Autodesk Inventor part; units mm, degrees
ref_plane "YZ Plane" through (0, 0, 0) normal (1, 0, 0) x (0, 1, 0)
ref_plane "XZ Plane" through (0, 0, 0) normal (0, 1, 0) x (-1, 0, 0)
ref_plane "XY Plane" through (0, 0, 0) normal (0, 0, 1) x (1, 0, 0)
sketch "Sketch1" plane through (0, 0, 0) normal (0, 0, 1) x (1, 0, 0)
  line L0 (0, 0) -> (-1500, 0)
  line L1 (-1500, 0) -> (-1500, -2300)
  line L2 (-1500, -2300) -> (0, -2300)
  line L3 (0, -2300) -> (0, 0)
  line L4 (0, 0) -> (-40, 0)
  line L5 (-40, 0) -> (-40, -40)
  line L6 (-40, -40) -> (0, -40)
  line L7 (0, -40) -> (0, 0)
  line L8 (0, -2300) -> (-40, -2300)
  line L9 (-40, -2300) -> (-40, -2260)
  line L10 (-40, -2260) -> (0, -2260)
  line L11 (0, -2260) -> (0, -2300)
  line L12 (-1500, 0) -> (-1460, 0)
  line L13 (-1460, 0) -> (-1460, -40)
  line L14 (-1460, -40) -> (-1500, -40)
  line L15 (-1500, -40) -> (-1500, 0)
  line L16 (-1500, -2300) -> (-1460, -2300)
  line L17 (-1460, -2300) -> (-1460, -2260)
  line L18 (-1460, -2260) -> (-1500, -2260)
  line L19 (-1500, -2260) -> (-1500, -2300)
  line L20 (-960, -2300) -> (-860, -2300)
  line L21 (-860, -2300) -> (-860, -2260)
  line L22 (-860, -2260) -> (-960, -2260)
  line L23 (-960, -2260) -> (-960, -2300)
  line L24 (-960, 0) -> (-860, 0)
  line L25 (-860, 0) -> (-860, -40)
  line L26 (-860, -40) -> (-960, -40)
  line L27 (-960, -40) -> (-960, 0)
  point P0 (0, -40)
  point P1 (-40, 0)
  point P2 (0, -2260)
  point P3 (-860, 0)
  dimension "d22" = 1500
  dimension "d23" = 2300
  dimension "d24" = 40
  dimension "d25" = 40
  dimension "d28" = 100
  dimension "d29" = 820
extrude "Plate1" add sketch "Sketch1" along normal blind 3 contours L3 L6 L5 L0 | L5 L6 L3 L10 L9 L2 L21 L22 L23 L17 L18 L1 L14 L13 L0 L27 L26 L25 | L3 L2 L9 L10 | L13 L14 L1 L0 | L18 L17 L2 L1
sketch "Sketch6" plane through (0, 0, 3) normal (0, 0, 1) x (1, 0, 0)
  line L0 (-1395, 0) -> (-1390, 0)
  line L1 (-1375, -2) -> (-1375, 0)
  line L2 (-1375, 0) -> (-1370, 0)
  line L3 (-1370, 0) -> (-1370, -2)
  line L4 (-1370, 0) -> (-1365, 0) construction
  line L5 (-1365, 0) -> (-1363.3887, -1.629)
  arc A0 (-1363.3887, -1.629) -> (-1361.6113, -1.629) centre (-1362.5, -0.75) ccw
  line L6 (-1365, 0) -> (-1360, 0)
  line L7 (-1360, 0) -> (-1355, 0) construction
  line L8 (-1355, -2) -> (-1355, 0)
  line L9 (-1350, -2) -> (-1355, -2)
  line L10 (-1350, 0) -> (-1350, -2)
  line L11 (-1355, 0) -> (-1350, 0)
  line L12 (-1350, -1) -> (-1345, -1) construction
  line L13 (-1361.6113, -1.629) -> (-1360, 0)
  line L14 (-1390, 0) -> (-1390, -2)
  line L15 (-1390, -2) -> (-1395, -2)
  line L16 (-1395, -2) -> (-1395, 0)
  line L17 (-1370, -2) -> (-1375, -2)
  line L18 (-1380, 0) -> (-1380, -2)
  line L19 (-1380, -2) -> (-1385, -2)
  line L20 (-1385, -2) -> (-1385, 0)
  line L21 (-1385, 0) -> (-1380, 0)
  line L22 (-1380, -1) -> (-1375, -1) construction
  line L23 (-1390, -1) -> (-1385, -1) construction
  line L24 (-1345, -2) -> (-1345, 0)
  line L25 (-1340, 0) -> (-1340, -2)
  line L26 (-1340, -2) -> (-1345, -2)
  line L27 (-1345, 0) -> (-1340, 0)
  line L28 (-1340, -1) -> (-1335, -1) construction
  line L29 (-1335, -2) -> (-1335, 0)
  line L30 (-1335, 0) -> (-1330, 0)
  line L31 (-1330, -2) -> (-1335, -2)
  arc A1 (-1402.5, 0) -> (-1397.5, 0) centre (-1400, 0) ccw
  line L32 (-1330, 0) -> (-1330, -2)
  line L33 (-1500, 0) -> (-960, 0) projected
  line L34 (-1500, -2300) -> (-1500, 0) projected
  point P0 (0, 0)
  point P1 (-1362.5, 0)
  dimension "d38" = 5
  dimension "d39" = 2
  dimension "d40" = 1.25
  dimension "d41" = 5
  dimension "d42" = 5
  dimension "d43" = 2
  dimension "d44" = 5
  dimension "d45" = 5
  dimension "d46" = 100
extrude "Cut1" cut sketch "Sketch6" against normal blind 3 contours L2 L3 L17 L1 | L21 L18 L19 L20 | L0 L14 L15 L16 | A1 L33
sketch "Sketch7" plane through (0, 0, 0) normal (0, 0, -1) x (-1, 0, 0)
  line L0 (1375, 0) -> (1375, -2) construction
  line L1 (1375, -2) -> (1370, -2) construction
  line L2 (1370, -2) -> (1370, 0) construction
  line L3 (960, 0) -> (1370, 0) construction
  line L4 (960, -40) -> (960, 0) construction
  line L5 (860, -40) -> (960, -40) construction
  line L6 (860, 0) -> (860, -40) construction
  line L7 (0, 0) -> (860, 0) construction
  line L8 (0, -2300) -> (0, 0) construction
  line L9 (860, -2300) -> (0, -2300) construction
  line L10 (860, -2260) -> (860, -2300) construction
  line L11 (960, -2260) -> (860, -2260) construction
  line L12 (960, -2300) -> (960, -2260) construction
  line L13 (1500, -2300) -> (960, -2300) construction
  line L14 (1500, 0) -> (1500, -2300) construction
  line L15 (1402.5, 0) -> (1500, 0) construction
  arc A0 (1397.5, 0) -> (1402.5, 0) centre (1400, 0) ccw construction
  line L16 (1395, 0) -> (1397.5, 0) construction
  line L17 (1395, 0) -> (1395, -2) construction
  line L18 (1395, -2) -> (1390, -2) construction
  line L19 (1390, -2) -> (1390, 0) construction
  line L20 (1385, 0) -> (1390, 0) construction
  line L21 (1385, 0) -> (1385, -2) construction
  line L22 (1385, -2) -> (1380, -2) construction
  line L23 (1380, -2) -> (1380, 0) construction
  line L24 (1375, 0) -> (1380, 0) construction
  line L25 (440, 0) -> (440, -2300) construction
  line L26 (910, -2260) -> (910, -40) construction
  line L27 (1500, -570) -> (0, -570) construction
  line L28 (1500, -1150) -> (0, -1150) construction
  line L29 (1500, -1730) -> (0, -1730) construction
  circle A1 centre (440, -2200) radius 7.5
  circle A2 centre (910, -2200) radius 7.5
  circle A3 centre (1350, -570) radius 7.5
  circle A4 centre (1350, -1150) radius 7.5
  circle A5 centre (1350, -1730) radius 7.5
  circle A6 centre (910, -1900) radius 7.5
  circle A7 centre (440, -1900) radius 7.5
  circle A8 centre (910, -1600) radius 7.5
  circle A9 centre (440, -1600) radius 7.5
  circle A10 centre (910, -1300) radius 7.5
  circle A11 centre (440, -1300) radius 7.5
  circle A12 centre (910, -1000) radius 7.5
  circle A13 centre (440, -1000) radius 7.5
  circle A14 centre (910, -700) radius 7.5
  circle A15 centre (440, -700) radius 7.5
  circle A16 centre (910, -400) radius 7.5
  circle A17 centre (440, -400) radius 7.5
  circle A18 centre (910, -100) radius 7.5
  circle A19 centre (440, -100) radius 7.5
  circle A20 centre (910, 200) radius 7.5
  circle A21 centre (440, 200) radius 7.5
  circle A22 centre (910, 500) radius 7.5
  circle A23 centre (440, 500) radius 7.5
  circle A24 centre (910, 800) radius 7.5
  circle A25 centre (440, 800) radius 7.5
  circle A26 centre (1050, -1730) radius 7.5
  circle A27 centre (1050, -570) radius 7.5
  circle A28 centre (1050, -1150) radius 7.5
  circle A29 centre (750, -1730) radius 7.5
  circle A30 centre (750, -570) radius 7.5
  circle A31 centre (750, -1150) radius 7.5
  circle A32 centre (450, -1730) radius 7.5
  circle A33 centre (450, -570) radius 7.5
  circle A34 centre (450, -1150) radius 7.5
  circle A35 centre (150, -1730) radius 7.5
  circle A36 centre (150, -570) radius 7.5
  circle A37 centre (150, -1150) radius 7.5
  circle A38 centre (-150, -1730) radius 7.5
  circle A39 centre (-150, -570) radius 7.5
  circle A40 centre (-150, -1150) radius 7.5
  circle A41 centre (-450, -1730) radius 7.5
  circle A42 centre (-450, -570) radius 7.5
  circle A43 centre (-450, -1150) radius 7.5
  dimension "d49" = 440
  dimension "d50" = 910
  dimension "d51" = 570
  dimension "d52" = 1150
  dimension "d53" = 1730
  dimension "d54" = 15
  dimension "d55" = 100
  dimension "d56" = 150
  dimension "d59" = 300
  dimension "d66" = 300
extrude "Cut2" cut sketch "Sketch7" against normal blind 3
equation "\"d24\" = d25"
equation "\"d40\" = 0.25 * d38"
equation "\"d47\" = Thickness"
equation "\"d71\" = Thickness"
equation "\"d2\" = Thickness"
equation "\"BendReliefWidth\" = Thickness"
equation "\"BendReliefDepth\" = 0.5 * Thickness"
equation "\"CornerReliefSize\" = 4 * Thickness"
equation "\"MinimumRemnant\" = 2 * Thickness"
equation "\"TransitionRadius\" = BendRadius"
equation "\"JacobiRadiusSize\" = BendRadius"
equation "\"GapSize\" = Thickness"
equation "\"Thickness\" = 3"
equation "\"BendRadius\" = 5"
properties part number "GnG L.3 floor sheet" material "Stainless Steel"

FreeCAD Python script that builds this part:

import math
import FreeCAD as App
import Part
import Sketcher
from FreeCAD import Vector
Q = App.Units.Quantity


def add_polygon(sketch, points):
    """Adds a closed chain of lines whose ends are joined by coincident constraints."""
    first, n = sketch.GeometryCount, len(points)
    for a, b in zip(points, points[1:] + points[:1]):
        sketch.addGeometry(Part.LineSegment(App.Vector(*a, 0), App.Vector(*b, 0)), False)
    for i in range(n):
        sketch.addConstraint(Sketcher.Constraint("Coincident", first + i, 2, first + (i + 1) % n, 1))

doc = App.newDocument("Part")
body = doc.addObject("PartDesign::Body", "Body")

# Sketch on XY plane
sketch1 = body.newObject("Sketcher::SketchObject", "Sketch")
sketch1.AttachmentSupport = (doc.getObject("XY_Plane"), [""])
sketch1.MapMode = "FlatFace"
add_polygon(sketch1, [(0, 0), (-860, 0), (-860, -40), (-960, -40), (-960, 0), (-1500, 0), (-1500, -2300), (-960, -2300), (-960, -2260), (-860, -2260), (-860, -2300), (0, -2300)])  # lines 0-11
sketch1.addConstraint([
    Sketcher.Constraint("Horizontal", 0),
    Sketcher.Constraint("Vertical", 1),
    Sketcher.Constraint("Horizontal", 2),
    Sketcher.Constraint("Vertical", 3),
    Sketcher.Constraint("Horizontal", 4),
    Sketcher.Constraint("Vertical", 5),
    Sketcher.Constraint("Horizontal", 6),
    Sketcher.Constraint("Vertical", 7),
    Sketcher.Constraint("Horizontal", 8),
    Sketcher.Constraint("Vertical", 9),
    Sketcher.Constraint("Horizontal", 10),
    Sketcher.Constraint("Vertical", 11),
    Sketcher.Constraint("Coincident", 11, 2, -1, 1),
    Sketcher.Constraint("PointOnObject", 3, 2, -1),
    Sketcher.Constraint("Horizontal", 6, 2, 9, 2),
    Sketcher.Constraint("Vertical", 3, 2, 6, 2),
    Sketcher.Constraint("Vertical", 1, 2, 8, 2),
    Sketcher.Constraint("Equal", 3, 7),
    Sketcher.Constraint("DistanceX", 2, 2, 2, 1, Q("100 mm")),
    Sketcher.Constraint("DistanceY", 1, 2, 1, 1, Q("40 mm")),
    Sketcher.Constraint("DistanceY", 5, 2, 5, 1, Q("2300 mm")),
    Sketcher.Constraint("DistanceX", 4, 2, -1, 1, Q("1500 mm")),
    Sketcher.Constraint("DistanceX", 0, 2, 0, 1, Q("860 mm")),
])
pad1 = body.newObject("PartDesign::Pad", "Pad")
pad1.Profile = sketch1
pad1.Length = 3

# Sketch on XY plane
sketch2 = body.newObject("Sketcher::SketchObject", "Sketch001")
sketch2.AttachmentSupport = (doc.getObject("XY_Plane"), [""])
sketch2.MapMode = "FlatFace"
sketch2.AttachmentOffset = App.Placement(Vector(0, 0, 3), App.Rotation())
add_polygon(sketch2, [(-1370, 0), (-1375, 0), (-1375, -2), (-1370, -2)])  # lines 0-3
add_polygon(sketch2, [(-1380, 0), (-1385, 0), (-1385, -2), (-1380, -2)])  # lines 4-7
add_polygon(sketch2, [(-1390, 0), (-1395, 0), (-1395, -2), (-1390, -2)])  # lines 8-11
sketch2.addGeometry(Part.ArcOfCircle(Part.Circle(Vector(-1400, 0, 0), Vector(0, 0, 1), 2.5), math.radians(180), math.radians(360)), False)  # 12
sketch2.addGeometry(Part.LineSegment(Vector(-1397.5, 0, 0), Vector(-1402.5, 0, 0)), False)  # 13
sketch2.addConstraint([
    Sketcher.Constraint("Coincident", 12, 1, 13, 2),
    Sketcher.Constraint("Coincident", 13, 1, 12, 2),
    Sketcher.Constraint("Horizontal", 0),
    Sketcher.Constraint("Vertical", 1),
    Sketcher.Constraint("Horizontal", 2),
    Sketcher.Constraint("Vertical", 3),
    Sketcher.Constraint("Horizontal", 4),
    Sketcher.Constraint("Vertical", 5),
    Sketcher.Constraint("Horizontal", 6),
    Sketcher.Constraint("Vertical", 7),
    Sketcher.Constraint("Horizontal", 8),
    Sketcher.Constraint("Vertical", 9),
    Sketcher.Constraint("Horizontal", 10),
    Sketcher.Constraint("Vertical", 11),
    Sketcher.Constraint("Horizontal", 13),
    Sketcher.Constraint("PointOnObject", 12, 3, -1),
    Sketcher.Constraint("PointOnObject", 0, 2, -1),
    Sketcher.Constraint("PointOnObject", 4, 2, -1),
    Sketcher.Constraint("PointOnObject", 8, 2, -1),
    Sketcher.Constraint("PointOnObject", 12, 1, -1),
    Sketcher.Constraint("Horizontal", 2, 2, 5, 2),
    Sketcher.Constraint("Horizontal", 6, 2, 9, 2),
    Sketcher.Constraint("Equal", 2, 4),
    Sketcher.Constraint("Equal", 6, 8),
    Sketcher.Constraint("Equal", 10, 13),
    Sketcher.Constraint("Radius", 12, Q("2.5 mm")),
    Sketcher.Constraint("DistanceY", 1, 2, 1, 1, Q("2 mm")),
    Sketcher.Constraint("DistanceX", 6, 2, 1, 2, Q("5 mm")),
    Sketcher.Constraint("DistanceX", 12, 3, 8, 2, Q("5 mm")),
    Sketcher.Constraint("DistanceX", 10, 2, 5, 2, Q("5 mm")),
    Sketcher.Constraint("DistanceX", 12, 3, -1, 1, Q("1400 mm")),
])
pocket1 = body.newObject("PartDesign::Pocket", "Pocket")
pocket1.Profile = sketch2
pocket1.Length = 3

# Sketch on XY plane
sketch3 = body.newObject("Sketcher::SketchObject", "Sketch002")
sketch3.AttachmentSupport = (doc.getObject("XY_Plane"), [""])
sketch3.MapMode = "FlatFace"
sketch3.addGeometry([
    Part.Circle(Vector(-440, -2200, 0), Vector(0, 0, 1), 7.5),  # 0
    Part.Circle(Vector(-910, -2200, 0), Vector(0, 0, 1), 7.5),  # 1
    Part.Circle(Vector(-1350, -570, 0), Vector(0, 0, 1), 7.5),  # 2
    Part.Circle(Vector(-1350, -1150, 0), Vector(0, 0, 1), 7.5),  # 3
    Part.Circle(Vector(-1350, -1730, 0), Vector(0, 0, 1), 7.5),  # 4
    Part.Circle(Vector(-910, -1900, 0), Vector(0, 0, 1), 7.5),  # 5
    Part.Circle(Vector(-440, -1900, 0), Vector(0, 0, 1), 7.5),  # 6
    Part.Circle(Vector(-910, -1600, 0), Vector(0, 0, 1), 7.5),  # 7
    Part.Circle(Vector(-440, -1600, 0), Vector(0, 0, 1), 7.5),  # 8
    Part.Circle(Vector(-910, -1300, 0), Vector(0, 0, 1), 7.5),  # 9
    Part.Circle(Vector(-440, -1300, 0), Vector(0, 0, 1), 7.5),  # 10
    Part.Circle(Vector(-910, -1000, 0), Vector(0, 0, 1), 7.5),  # 11
    Part.Circle(Vector(-440, -1000, 0), Vector(0, 0, 1), 7.5),  # 12
    Part.Circle(Vector(-910, -700, 0), Vector(0, 0, 1), 7.5),  # 13
    Part.Circle(Vector(-440, -700, 0), Vector(0, 0, 1), 7.5),  # 14
    Part.Circle(Vector(-910, -400, 0), Vector(0, 0, 1), 7.5),  # 15
    Part.Circle(Vector(-440, -400, 0), Vector(0, 0, 1), 7.5),  # 16
    Part.Circle(Vector(-910, -100, 0), Vector(0, 0, 1), 7.5),  # 17
    Part.Circle(Vector(-440, -100, 0), Vector(0, 0, 1), 7.5),  # 18
    Part.Circle(Vector(-910, 200, 0), Vector(0, 0, 1), 7.5),  # 19
    Part.Circle(Vector(-440, 200, 0), Vector(0, 0, 1), 7.5),  # 20
    Part.Circle(Vector(-910, 500, 0), Vector(0, 0, 1), 7.5),  # 21
    Part.Circle(Vector(-440, 500, 0), Vector(0, 0, 1), 7.5),  # 22
    Part.Circle(Vector(-910, 800, 0), Vector(0, 0, 1), 7.5),  # 23
    Part.Circle(Vector(-440, 800, 0), Vector(0, 0, 1), 7.5),  # 24
    Part.Circle(Vector(-1050, -1730, 0), Vector(0, 0, 1), 7.5),  # 25
    Part.Circle(Vector(-1050, -570, 0), Vector(0, 0, 1), 7.5),  # 26
    Part.Circle(Vector(-1050, -1150, 0), Vector(0, 0, 1), 7.5),  # 27
    Part.Circle(Vector(-750, -1730, 0), Vector(0, 0, 1), 7.5),  # 28
    Part.Circle(Vector(-750, -570, 0), Vector(0, 0, 1), 7.5),  # 29
    Part.Circle(Vector(-750, -1150, 0), Vector(0, 0, 1), 7.5),  # 30
    Part.Circle(Vector(-450, -1730, 0), Vector(0, 0, 1), 7.5),  # 31
    Part.Circle(Vector(-450, -570, 0), Vector(0, 0, 1), 7.5),  # 32
    Part.Circle(Vector(-450, -1150, 0), Vector(0, 0, 1), 7.5),  # 33
    Part.Circle(Vector(-150, -1730, 0), Vector(0, 0, 1), 7.5),  # 34
    Part.Circle(Vector(-150, -570, 0), Vector(0, 0, 1), 7.5),  # 35
    Part.Circle(Vector(-150, -1150, 0), Vector(0, 0, 1), 7.5),  # 36
    Part.Circle(Vector(150, -1730, 0), Vector(0, 0, 1), 7.5),  # 37
    Part.Circle(Vector(150, -570, 0), Vector(0, 0, 1), 7.5),  # 38
    Part.Circle(Vector(150, -1150, 0), Vector(0, 0, 1), 7.5),  # 39
    Part.Circle(Vector(450, -1730, 0), Vector(0, 0, 1), 7.5),  # 40
    Part.Circle(Vector(450, -570, 0), Vector(0, 0, 1), 7.5),  # 41
    Part.Circle(Vector(450, -1150, 0), Vector(0, 0, 1), 7.5),  # 42
], False)
sketch3.addConstraint([
    Sketcher.Constraint("Equal", 0, 1),
    Sketcher.Constraint("Equal", 1, 2),
    Sketcher.Constraint("Equal", 2, 3),
    Sketcher.Constraint("Equal", 3, 4),
    Sketcher.Constraint("Equal", 4, 5),
    Sketcher.Constraint("Equal", 5, 6),
    Sketcher.Constraint("Equal", 6, 7),
    Sketcher.Constraint("Equal", 7, 8),
    Sketcher.Constraint("Equal", 8, 9),
    Sketcher.Constraint("Equal", 9, 10),
    Sketcher.Constraint("Equal", 10, 11),
    Sketcher.Constraint("Equal", 11, 12),
    Sketcher.Constraint("Equal", 12, 13),
    Sketcher.Constraint("Equal", 13, 14),
    Sketcher.Constraint("Equal", 14, 15),
    Sketcher.Constraint("Equal", 15, 16),
    Sketcher.Constraint("Equal", 16, 17),
    Sketcher.Constraint("Equal", 17, 18),
    Sketcher.Constraint("Equal", 18, 19),
    Sketcher.Constraint("Equal", 19, 20),
    Sketcher.Constraint("Equal", 20, 21),
    Sketcher.Constraint("Equal", 21, 22),
    Sketcher.Constraint("Equal", 22, 23),
    Sketcher.Constraint("Equal", 23, 24),
    Sketcher.Constraint("Equal", 24, 25),
    Sketcher.Constraint("Equal", 25, 26),
    Sketcher.Constraint("Equal", 26, 27),
    Sketcher.Constraint("Equal", 27, 28),
    Sketcher.Constraint("Equal", 28, 29),
    Sketcher.Constraint("Equal", 29, 30),
    Sketcher.Constraint("Equal", 30, 31),
    Sketcher.Constraint("Equal", 31, 32),
    Sketcher.Constraint("Equal", 32, 33),
    Sketcher.Constraint("Equal", 33, 34),
    Sketcher.Constraint("Equal", 34, 35),
    Sketcher.Constraint("Equal", 35, 36),
    Sketcher.Constraint("Equal", 36, 37),
    Sketcher.Constraint("Equal", 37, 38),
    Sketcher.Constraint("Equal", 38, 39),
    Sketcher.Constraint("Equal", 39, 40),
    Sketcher.Constraint("Equal", 40, 41),
    Sketcher.Constraint("Equal", 41, 42),
    Sketcher.Constraint("Symmetric", 34, 3, 37, 3, -2),
    Sketcher.Constraint("Symmetric", 35, 3, 38, 3, -2),
    Sketcher.Constraint("Symmetric", 36, 3, 39, 3, -2),
    Sketcher.Constraint("Symmetric", 31, 3, 40, 3, -2),
    Sketcher.Constraint("Symmetric", 32, 3, 41, 3, -2),
    Sketcher.Constraint("Symmetric", 33, 3, 42, 3, -2),
    Sketcher.Constraint("Horizontal", 0, 3, 1, 3),
    Sketcher.Constraint("Horizontal", 5, 3, 6, 3),
    Sketcher.Constraint("Horizontal", 7, 3, 8, 3),
    Sketcher.Constraint("Horizontal", 9, 3, 10, 3),
    Sketcher.Constraint("Horizontal", 11, 3, 12, 3),
    Sketcher.Constraint("Horizontal", 13, 3, 14, 3),
    Sketcher.Constraint("Horizontal", 15, 3, 16, 3),
    Sketcher.Constraint("Horizontal", 17, 3, 18, 3),
    Sketcher.Constraint("Horizontal", 19, 3, 20, 3),
    Sketcher.Constraint("Horizontal", 21, 3, 22, 3),
    Sketcher.Constraint("Horizontal", 23, 3, 24, 3),
    Sketcher.Constraint("Horizontal", 4, 3, 25, 3),
    Sketcher.Constraint("Horizontal", 2, 3, 26, 3),
    Sketcher.Constraint("Horizontal", 3, 3, 27, 3),
    Sketcher.Constraint("Horizontal", 25, 3, 28, 3),
    Sketcher.Constraint("Horizontal", 26, 3, 29, 3),
    Sketcher.Constraint("Horizontal", 27, 3, 30, 3),
    Sketcher.Constraint("Horizontal", 28, 3, 31, 3),
    Sketcher.Constraint("Horizontal", 29, 3, 32, 3),
    Sketcher.Constraint("Horizontal", 30, 3, 33, 3),
    Sketcher.Constraint("Horizontal", 31, 3, 34, 3),
    Sketcher.Constraint("Horizontal", 32, 3, 35, 3),
    Sketcher.Constraint("Horizontal", 33, 3, 36, 3),
    Sketcher.Constraint("Vertical", 2, 3, 3, 3),
    Sketcher.Constraint("Vertical", 3, 3, 4, 3),
    Sketcher.Constraint("Vertical", 1, 3, 5, 3),
    Sketcher.Constraint("Vertical", 0, 3, 6, 3),
    Sketcher.Constraint("Vertical", 5, 3, 7, 3),
    Sketcher.Constraint("Vertical", 6, 3, 8, 3),
    Sketcher.Constraint("Vertical", 7, 3, 9, 3),
    Sketcher.Constraint("Vertical", 8, 3, 10, 3),
    Sketcher.Constraint("Vertical", 9, 3, 11, 3),
    Sketcher.Constraint("Vertical", 10, 3, 12, 3),
    Sketcher.Constraint("Vertical", 11, 3, 13, 3),
    Sketcher.Constraint("Vertical", 12, 3, 14, 3),
    Sketcher.Constraint("Vertical", 13, 3, 15, 3),
    Sketcher.Constraint("Vertical", 14, 3, 16, 3),
    Sketcher.Constraint("Vertical", 15, 3, 17, 3),
    Sketcher.Constraint("Vertical", 16, 3, 18, 3),
    Sketcher.Constraint("Vertical", 17, 3, 19, 3),
    Sketcher.Constraint("Vertical", 18, 3, 20, 3),
    Sketcher.Constraint("Vertical", 19, 3, 21, 3),
    Sketcher.Constraint("Vertical", 20, 3, 22, 3),
    Sketcher.Constraint("Vertical", 21, 3, 23, 3),
    Sketcher.Constraint("Vertical", 22, 3, 24, 3),
    Sketcher.Constraint("Vertical", 25, 3, 26, 3),
    Sketcher.Constraint("Vertical", 26, 3, 27, 3),
    Sketcher.Constraint("Vertical", 28, 3, 29, 3),
    Sketcher.Constraint("Vertical", 29, 3, 30, 3),
    Sketcher.Constraint("Vertical", 31, 3, 32, 3),
    Sketcher.Constraint("Vertical", 32, 3, 33, 3),
    Sketcher.Constraint("Vertical", 34, 3, 35, 3),
    Sketcher.Constraint("Vertical", 35, 3, 36, 3),
    Sketcher.Constraint("Diameter", 0, Q("15 mm")),
    Sketcher.Constraint("DistanceX", 0, 3, -1, 1, Q("440 mm")),
    Sketcher.Constraint("DistanceX", 1, 3, -1, 1, Q("910 mm")),
    Sketcher.Constraint("DistanceY", 2, 3, -1, 1, Q("570 mm")),
    Sketcher.Constraint("DistanceY", 3, 3, -1, 1, Q("1150 mm")),
    Sketcher.Constraint("DistanceY", 4, 3, -1, 1, Q("1730 mm")),
    Sketcher.Constraint("DistanceY", 17, 3, -1, 1, Q("100 mm")),
    Sketcher.Constraint("DistanceX", 34, 3, -1, 1, Q("150 mm")),
    Sketcher.Constraint("DistanceX", 2, 3, 1, 3, Q("440 mm")),
    Sketcher.Constraint("DistanceY", 1, 3, 5, 3, Q("300 mm")),
    Sketcher.Constraint("DistanceY", 5, 3, 7, 3, Q("300 mm")),
    Sketcher.Constraint("DistanceY", 7, 3, 9, 3, Q("300 mm")),
    Sketcher.Constraint("DistanceY", 9, 3, 3, 3, Q("150 mm")),
    Sketcher.Constraint("DistanceY", 9, 3, 11, 3, Q("300 mm")),
    Sketcher.Constraint("DistanceY", 11, 3, 13, 3, Q("300 mm")),
    Sketcher.Constraint("DistanceY", 13, 3, 15, 3, Q("300 mm")),
    Sketcher.Constraint("DistanceY", 17, 3, 19, 3, Q("300 mm")),
    Sketcher.Constraint("DistanceY", 19, 3, 21, 3, Q("300 mm")),
    Sketcher.Constraint("DistanceY", 21, 3, 23, 3, Q("300 mm")),
    Sketcher.Constraint("DistanceX", 4, 3, 25, 3, Q("300 mm")),
    Sketcher.Constraint("DistanceX", 25, 3, 28, 3, Q("300 mm")),
    Sketcher.Constraint("DistanceX", 28, 3, 31, 3, Q("300 mm")),
])
pocket2 = body.newObject("PartDesign::Pocket", "Pocket001")
pocket2.Profile = sketch3
pocket2.Length = 3
pocket2.Reversed = True

doc.recompute()
